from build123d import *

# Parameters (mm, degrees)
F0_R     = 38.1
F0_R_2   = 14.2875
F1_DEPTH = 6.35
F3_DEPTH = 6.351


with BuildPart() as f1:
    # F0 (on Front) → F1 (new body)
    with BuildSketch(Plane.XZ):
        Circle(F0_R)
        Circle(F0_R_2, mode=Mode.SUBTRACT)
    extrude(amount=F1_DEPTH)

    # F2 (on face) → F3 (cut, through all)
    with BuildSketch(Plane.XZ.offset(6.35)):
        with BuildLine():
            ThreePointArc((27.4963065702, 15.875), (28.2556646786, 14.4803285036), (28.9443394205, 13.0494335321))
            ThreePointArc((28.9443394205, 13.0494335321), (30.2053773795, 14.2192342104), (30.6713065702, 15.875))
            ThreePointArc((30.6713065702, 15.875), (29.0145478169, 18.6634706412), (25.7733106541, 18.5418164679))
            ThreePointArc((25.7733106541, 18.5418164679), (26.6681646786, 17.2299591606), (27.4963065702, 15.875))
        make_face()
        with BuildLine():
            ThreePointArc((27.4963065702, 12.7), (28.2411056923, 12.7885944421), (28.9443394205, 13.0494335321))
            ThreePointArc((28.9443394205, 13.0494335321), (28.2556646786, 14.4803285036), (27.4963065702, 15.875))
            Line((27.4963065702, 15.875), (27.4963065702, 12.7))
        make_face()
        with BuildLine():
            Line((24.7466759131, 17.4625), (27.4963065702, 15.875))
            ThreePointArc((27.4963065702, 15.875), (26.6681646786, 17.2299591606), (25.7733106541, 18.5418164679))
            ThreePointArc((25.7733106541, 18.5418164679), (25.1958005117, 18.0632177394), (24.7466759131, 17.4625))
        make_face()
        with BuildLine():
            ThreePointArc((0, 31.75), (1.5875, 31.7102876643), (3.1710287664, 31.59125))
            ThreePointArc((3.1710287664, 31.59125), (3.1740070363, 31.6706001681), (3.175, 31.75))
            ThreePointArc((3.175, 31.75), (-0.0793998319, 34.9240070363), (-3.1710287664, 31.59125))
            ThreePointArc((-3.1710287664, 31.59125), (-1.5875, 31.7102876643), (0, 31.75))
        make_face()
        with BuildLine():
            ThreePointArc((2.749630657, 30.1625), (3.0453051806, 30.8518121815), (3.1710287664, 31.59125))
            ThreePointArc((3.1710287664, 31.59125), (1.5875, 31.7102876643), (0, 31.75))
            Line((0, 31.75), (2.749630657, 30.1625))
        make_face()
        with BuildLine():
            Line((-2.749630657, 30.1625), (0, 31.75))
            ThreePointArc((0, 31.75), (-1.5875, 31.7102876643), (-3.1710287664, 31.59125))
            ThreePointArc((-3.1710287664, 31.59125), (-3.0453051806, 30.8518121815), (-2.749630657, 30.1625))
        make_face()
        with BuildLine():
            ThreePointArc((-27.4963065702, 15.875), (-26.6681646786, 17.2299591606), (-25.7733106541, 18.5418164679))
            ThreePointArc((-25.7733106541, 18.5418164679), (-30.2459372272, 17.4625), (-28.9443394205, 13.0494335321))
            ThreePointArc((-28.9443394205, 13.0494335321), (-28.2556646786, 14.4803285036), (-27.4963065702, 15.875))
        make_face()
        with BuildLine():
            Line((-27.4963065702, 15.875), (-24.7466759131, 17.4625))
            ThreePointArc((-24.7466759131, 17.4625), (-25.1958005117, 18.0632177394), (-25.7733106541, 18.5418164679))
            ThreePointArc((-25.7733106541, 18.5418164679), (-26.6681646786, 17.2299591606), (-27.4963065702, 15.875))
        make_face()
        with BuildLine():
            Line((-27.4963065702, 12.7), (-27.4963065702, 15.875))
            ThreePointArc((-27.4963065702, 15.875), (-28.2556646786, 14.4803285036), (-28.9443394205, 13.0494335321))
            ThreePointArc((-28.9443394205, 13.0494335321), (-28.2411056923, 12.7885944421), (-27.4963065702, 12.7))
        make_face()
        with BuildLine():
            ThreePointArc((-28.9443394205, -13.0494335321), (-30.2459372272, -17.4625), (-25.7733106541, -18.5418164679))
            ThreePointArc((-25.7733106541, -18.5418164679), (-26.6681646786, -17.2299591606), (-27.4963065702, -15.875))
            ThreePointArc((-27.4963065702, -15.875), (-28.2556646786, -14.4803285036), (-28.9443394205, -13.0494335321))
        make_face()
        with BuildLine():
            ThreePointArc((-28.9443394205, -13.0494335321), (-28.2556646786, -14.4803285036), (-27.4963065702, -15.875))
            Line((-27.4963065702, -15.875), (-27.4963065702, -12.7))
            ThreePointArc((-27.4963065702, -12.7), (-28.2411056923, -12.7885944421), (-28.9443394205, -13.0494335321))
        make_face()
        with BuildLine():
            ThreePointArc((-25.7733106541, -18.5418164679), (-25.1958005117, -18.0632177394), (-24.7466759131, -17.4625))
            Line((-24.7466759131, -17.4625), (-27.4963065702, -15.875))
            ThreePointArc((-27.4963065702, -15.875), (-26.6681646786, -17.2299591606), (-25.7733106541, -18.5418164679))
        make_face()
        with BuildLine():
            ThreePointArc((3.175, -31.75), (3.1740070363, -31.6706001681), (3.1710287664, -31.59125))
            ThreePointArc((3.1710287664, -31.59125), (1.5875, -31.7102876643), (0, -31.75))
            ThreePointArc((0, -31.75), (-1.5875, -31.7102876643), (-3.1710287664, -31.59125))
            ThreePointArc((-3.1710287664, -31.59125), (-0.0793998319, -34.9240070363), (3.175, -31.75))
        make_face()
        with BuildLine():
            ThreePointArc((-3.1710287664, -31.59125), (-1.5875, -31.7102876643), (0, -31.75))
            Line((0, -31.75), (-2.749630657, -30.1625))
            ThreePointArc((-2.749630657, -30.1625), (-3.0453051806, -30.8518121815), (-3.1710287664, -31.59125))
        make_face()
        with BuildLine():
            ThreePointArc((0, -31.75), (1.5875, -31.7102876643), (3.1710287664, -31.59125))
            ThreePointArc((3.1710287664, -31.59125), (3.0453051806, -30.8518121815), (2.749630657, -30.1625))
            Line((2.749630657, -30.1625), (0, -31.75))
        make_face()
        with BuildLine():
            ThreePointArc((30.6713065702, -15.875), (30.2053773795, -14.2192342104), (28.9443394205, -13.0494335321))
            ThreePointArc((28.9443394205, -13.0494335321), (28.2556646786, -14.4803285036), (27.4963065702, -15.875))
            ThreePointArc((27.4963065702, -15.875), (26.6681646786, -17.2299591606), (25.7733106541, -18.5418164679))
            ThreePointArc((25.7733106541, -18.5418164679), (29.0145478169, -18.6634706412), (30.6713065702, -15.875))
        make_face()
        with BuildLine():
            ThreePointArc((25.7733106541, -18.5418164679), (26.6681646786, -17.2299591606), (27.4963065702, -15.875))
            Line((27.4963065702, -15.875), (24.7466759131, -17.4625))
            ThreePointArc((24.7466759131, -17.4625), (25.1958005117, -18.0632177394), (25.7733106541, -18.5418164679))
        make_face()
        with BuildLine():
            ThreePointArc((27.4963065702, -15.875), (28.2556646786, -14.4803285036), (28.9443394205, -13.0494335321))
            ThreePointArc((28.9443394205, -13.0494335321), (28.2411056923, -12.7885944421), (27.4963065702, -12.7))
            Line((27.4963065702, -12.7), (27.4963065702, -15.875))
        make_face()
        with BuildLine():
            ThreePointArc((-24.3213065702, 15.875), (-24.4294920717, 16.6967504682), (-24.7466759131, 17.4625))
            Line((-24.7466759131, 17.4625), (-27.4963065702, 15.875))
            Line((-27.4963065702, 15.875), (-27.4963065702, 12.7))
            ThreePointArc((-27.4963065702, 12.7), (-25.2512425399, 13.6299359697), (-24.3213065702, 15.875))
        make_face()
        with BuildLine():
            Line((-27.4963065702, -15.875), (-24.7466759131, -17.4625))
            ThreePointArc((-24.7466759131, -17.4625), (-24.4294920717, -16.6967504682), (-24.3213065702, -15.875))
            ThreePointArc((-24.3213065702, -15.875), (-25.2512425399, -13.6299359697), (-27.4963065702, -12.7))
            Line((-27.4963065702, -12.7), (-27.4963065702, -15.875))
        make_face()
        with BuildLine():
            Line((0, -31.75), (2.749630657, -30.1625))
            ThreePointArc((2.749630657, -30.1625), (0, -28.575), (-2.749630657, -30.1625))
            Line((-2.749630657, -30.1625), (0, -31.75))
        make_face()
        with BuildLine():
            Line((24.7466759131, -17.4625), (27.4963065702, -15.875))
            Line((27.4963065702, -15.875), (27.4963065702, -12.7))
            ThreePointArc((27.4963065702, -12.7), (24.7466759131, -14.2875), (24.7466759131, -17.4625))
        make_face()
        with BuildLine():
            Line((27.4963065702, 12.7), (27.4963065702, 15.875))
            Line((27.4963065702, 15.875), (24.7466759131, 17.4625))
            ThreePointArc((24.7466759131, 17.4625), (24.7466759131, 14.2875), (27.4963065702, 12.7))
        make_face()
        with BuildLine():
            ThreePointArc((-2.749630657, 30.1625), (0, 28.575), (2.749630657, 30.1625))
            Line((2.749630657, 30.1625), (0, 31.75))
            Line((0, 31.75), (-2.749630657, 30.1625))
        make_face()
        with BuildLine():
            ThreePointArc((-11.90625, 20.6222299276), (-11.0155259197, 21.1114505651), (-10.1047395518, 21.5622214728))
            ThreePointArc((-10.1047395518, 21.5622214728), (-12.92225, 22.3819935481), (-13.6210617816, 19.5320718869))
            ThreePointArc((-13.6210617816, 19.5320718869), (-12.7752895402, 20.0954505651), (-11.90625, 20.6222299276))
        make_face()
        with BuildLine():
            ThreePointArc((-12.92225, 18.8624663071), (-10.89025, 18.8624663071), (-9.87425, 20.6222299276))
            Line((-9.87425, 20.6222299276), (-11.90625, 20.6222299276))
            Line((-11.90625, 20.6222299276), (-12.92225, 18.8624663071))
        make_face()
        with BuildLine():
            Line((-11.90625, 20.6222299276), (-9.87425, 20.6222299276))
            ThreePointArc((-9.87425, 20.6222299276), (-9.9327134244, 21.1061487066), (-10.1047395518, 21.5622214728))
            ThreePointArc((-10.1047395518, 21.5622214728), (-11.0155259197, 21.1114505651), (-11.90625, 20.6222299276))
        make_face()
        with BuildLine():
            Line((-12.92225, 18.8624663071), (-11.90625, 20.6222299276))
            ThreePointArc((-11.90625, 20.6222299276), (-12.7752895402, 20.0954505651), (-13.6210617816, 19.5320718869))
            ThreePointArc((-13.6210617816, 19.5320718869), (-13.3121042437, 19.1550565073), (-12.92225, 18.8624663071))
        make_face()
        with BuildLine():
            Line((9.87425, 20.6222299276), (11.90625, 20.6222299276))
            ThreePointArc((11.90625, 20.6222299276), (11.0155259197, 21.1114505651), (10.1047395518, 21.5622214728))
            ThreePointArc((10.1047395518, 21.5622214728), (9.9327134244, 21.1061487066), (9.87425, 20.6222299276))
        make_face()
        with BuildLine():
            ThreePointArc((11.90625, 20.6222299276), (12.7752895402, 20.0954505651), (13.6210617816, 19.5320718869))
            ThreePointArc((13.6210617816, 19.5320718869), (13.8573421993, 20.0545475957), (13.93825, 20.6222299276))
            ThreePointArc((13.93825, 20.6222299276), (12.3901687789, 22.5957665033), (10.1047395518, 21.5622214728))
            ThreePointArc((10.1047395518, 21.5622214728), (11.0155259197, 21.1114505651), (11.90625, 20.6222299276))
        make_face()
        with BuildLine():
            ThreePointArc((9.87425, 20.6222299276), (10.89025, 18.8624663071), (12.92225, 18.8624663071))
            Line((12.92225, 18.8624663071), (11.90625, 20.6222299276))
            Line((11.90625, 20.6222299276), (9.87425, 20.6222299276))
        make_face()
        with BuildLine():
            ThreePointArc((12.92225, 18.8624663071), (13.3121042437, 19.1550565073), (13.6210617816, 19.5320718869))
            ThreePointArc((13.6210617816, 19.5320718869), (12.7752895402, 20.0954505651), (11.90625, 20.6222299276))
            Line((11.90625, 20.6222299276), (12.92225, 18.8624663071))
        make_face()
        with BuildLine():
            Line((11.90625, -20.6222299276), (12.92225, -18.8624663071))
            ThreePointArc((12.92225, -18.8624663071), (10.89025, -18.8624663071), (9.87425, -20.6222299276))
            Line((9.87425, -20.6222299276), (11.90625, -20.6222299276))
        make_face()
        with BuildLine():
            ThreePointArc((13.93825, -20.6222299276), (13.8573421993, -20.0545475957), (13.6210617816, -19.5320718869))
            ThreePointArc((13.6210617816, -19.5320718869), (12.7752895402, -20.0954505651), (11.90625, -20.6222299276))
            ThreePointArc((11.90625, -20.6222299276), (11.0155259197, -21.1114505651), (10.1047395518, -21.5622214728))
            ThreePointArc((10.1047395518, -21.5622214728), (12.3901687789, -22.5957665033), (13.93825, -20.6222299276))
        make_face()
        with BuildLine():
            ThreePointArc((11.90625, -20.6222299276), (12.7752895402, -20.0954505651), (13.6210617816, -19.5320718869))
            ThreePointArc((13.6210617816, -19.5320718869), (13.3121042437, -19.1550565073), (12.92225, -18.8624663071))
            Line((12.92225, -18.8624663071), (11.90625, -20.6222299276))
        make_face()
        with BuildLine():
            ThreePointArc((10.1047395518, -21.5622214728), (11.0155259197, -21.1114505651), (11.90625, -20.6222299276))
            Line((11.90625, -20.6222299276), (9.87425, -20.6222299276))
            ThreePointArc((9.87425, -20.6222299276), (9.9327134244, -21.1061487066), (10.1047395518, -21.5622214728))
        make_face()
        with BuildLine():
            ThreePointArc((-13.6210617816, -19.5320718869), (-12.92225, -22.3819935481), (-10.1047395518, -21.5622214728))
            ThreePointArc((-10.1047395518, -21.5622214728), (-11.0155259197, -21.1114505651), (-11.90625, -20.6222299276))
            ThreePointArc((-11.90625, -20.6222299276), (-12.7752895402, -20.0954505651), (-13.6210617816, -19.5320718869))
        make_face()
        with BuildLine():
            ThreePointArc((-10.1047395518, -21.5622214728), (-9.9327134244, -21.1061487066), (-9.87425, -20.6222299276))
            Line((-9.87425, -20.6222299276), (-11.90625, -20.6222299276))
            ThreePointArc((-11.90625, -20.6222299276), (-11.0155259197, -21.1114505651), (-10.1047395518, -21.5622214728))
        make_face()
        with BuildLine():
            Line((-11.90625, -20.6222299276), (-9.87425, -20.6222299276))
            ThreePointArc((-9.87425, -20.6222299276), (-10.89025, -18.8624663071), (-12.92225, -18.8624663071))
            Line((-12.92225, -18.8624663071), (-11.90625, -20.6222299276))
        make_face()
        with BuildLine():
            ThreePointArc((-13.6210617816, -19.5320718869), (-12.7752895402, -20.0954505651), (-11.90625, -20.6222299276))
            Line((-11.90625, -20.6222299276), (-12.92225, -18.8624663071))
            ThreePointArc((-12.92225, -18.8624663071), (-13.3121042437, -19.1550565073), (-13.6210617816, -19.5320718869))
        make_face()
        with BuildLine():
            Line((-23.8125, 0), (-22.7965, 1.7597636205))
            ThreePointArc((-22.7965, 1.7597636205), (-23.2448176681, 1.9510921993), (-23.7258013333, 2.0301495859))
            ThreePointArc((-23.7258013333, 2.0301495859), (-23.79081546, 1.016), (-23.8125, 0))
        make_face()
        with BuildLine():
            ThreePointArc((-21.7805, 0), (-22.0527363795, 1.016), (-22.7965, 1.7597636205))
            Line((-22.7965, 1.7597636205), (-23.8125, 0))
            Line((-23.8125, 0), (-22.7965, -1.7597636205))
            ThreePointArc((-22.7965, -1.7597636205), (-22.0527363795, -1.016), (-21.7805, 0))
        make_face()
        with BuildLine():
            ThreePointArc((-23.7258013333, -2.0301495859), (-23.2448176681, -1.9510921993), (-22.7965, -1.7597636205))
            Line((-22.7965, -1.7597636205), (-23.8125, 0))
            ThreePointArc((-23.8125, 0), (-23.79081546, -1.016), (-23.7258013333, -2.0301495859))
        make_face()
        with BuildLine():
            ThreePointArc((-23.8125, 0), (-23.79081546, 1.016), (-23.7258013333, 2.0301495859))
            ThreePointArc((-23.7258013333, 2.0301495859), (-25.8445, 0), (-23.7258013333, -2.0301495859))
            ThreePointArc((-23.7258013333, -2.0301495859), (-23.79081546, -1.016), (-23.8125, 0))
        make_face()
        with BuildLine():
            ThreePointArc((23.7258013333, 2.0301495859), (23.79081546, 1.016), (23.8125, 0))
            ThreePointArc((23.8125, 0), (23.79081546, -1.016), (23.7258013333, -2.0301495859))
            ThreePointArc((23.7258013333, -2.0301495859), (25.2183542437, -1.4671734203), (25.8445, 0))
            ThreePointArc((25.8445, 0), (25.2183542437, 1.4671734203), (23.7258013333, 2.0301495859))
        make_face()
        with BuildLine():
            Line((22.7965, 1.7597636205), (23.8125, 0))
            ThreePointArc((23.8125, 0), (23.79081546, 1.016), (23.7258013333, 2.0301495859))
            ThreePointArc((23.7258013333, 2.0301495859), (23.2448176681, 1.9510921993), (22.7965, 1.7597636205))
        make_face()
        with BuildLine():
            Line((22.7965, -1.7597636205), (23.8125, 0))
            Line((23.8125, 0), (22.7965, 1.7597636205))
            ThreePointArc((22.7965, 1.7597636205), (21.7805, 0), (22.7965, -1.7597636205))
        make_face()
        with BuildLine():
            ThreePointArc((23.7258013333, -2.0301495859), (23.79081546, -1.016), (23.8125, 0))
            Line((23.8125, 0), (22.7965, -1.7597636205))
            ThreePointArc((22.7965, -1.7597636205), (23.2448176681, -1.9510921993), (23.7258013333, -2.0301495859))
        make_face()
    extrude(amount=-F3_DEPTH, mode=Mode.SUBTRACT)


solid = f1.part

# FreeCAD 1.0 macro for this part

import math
import FreeCAD as App
import Part
import Sketcher
Q = App.Units.Quantity

doc = App.newDocument("Part")
body = doc.addObject("PartDesign::Body", "Body")

sketch1 = body.newObject("Sketcher::SketchObject", "Sketch")
sketch1.AttachmentSupport = (doc.getObject("XZ_Plane"), [""])
sketch1.MapMode = "FlatFace"
sketch1.addGeometry([
    Part.Circle(App.Vector(0, 0, 0), App.Vector(0, 0, 1), 38),
    Part.Circle(App.Vector(0, 0, 0), App.Vector(0, 0, 1), 14),
], False)
sketch1.addConstraint([
    Sketcher.Constraint("Coincident", 0, 3, -1, 1),
    Sketcher.Constraint("Coincident", 1, 3, -1, 1),
    Sketcher.Constraint("Diameter", 0, Q("3 in")),
    Sketcher.Constraint("Diameter", 1, Q("1.125 in")),
])
pad1 = body.newObject("PartDesign::Pad", "Pad")
pad1.Profile = sketch1
pad1.Length = Q("0.25 in")

sketch2 = body.newObject("Sketcher::SketchObject", "Sketch001")
sketch2.AttachmentSupport = (doc.getObject("XZ_Plane"), [""])
sketch2.MapMode = "FlatFace"
sketch2.AttachmentOffset = App.Placement(App.Vector(0, 0, 0.25 * 25.4), App.Rotation())
sketch2.addGeometry([
    Part.ArcOfCircle(Part.Circle(App.Vector(27.5, 15.88, 0), App.Vector(0, 0, 1), 3.17), math.radians(-63), math.radians(0)),
    Part.ArcOfCircle(Part.Circle(App.Vector(27.5, 15.88, 0), App.Vector(0, 0, 1), 3.17), math.radians(0), math.radians(123)),
    Part.ArcOfCircle(Part.Circle(App.Vector(27.5, 15.87, 0), App.Vector(0, 0, 1), 3.18), math.radians(123), math.radians(150)),
    Part.ArcOfCircle(Part.Circle(App.Vector(27.5, 15.88, 0), App.Vector(0, 0, 1), 3.17), math.radians(150), math.radians(270)),
    Part.ArcOfCircle(Part.Circle(App.Vector(27.5, 15.88, 0), App.Vector(0, 0, 1), 3.17), math.radians(-90), math.radians(-63)),
    Part.ArcOfCircle(Part.Circle(App.Vector(0, 31.75, 0), App.Vector(0, 0, 1), 3.18), math.radians(-2.87), math.radians(0)),
    Part.ArcOfCircle(Part.Circle(App.Vector(0, 31.75, 0), App.Vector(0, 0, 1), 3.17), math.radians(0), math.radians(183)),
    Part.ArcOfCircle(Part.Circle(App.Vector(0, 31.75, 0), App.Vector(0, 0, 1), 3.17), math.radians(-177), math.radians(-150)),
    Part.ArcOfCircle(Part.Circle(App.Vector(0, 31.75, 0), App.Vector(0, 0, 1), 3.17), math.radians(-150), math.radians(-30)),
    Part.ArcOfCircle(Part.Circle(App.Vector(0, 31.75, 0), App.Vector(0, 0, 1), 3.17), math.radians(-30), math.radians(-3)),
    Part.ArcOfCircle(Part.Circle(App.Vector(-27.5, 15.88, 0), App.Vector(0, 0, 1), 3.17), math.radians(57), math.radians(243)),
    Part.ArcOfCircle(Part.Circle(App.Vector(-27.5, 15.88, 0), App.Vector(0, 0, 1), 3.17), math.radians(-117), math.radians(-90)),
    Part.ArcOfCircle(Part.Circle(App.Vector(-27.5, 15.88, 0), App.Vector(0, 0, 1), 3.17), math.radians(-90), math.radians(0)),
    Part.ArcOfCircle(Part.Circle(App.Vector(-27.5, 15.88, 0), App.Vector(0, 0, 1), 3.17), math.radians(0), math.radians(30)),
    Part.ArcOfCircle(Part.Circle(App.Vector(-27.5, 15.87, 0), App.Vector(0, 0, 1), 3.18), math.radians(30), math.radians(57)),
    Part.ArcOfCircle(Part.Circle(App.Vector(-27.5, -15.88, 0), App.Vector(0, 0, 1), 3.17), math.radians(117), math.radians(303)),
    Part.ArcOfCircle(Part.Circle(App.Vector(-27.5, -15.87, 0), App.Vector(0, 0, 1), 3.18), math.radians(-57), math.radians(-30)),
    Part.ArcOfCircle(Part.Circle(App.Vector(-27.5, -15.88, 0), App.Vector(0, 0, 1), 3.17), math.radians(-30), math.radians(0)),
    Part.ArcOfCircle(Part.Circle(App.Vector(-27.5, -15.88, 0), App.Vector(0, 0, 1), 3.17), math.radians(0), math.radians(90)),
    Part.ArcOfCircle(Part.Circle(App.Vector(-27.5, -15.88, 0), App.Vector(0, 0, 1), 3.17), math.radians(90), math.radians(117)),
    Part.ArcOfCircle(Part.Circle(App.Vector(0, -31.75, 0), App.Vector(0, 0, 1), 3.18), math.radians(0), math.radians(2.87)),
    Part.ArcOfCircle(Part.Circle(App.Vector(0, -31.75, 0), App.Vector(0, 0, 1), 3.17), math.radians(3), math.radians(30)),
    Part.ArcOfCircle(Part.Circle(App.Vector(0, -31.75, 0), App.Vector(0, 0, 1), 3.17), math.radians(30), math.radians(150)),
    Part.ArcOfCircle(Part.Circle(App.Vector(0, -31.75, 0), App.Vector(0, 0, 1), 3.17), math.radians(150), math.radians(177)),
    Part.ArcOfCircle(Part.Circle(App.Vector(0, -31.75, 0), App.Vector(0, 0, 1), 3.17), math.radians(177), math.radians(360)),
    Part.ArcOfCircle(Part.Circle(App.Vector(27.5, -15.88, 0), App.Vector(0, 0, 1), 3.17), math.radians(0), math.radians(63)),
    Part.ArcOfCircle(Part.Circle(App.Vector(27.5, -15.88, 0), App.Vector(0, 0, 1), 3.17), math.radians(63), math.radians(90)),
    Part.ArcOfCircle(Part.Circle(App.Vector(27.5, -15.88, 0), App.Vector(0, 0, 1), 3.17), math.radians(90), math.radians(210)),
    Part.ArcOfCircle(Part.Circle(App.Vector(27.5, -15.87, 0), App.Vector(0, 0, 1), 3.18), math.radians(-150), math.radians(-123)),
    Part.ArcOfCircle(Part.Circle(App.Vector(27.5, -15.88, 0), App.Vector(0, 0, 1), 3.17), math.radians(-123), math.radians(0)),
    Part.ArcOfCircle(Part.Circle(App.Vector(-11.91, 20.62, 0), App.Vector(0, 0, 1), 2.03), math.radians(28), math.radians(212)),
    Part.ArcOfCircle(Part.Circle(App.Vector(-11.91, 20.62, 0), App.Vector(0, 0, 1), 2.03), math.radians(-148), math.radians(-120)),
    Part.ArcOfCircle(Part.Circle(App.Vector(-11.91, 20.62, 0), App.Vector(0, 0, 1), 2.03), math.radians(-120), math.radians(0)),
    Part.ArcOfCircle(Part.Circle(App.Vector(-11.91, 20.62, 0), App.Vector(0, 0, 1), 2.03), math.radians(0), math.radians(28)),
    Part.ArcOfCircle(Part.Circle(App.Vector(11.91, 20.62, 0), App.Vector(0, 0, 1), 2.03), math.radians(-32), math.radians(0)),
    Part.ArcOfCircle(Part.Circle(App.Vector(11.91, 20.62, 0), App.Vector(0, 0, 1), 2.03), math.radians(0), math.radians(152)),
    Part.ArcOfCircle(Part.Circle(App.Vector(11.91, 20.62, 0), App.Vector(0, 0, 1), 2.03), math.radians(152), math.radians(180)),
    Part.ArcOfCircle(Part.Circle(App.Vector(11.91, 20.62, 0), App.Vector(0, 0, 1), 2.03), math.radians(180), math.radians(300)),
    Part.ArcOfCircle(Part.Circle(App.Vector(11.91, 20.62, 0), App.Vector(0, 0, 1), 2.03), math.radians(-60), math.radians(-32)),
    Part.ArcOfCircle(Part.Circle(App.Vector(11.91, -20.62, 0), App.Vector(0, 0, 1), 2.03), math.radians(60), math.radians(180)),
    Part.ArcOfCircle(Part.Circle(App.Vector(11.91, -20.62, 0), App.Vector(0, 0, 1), 2.03), math.radians(-180), math.radians(-152)),
    Part.ArcOfCircle(Part.Circle(App.Vector(11.91, -20.62, 0), App.Vector(0, 0, 1), 2.03), math.radians(-152), math.radians(0)),
    Part.ArcOfCircle(Part.Circle(App.Vector(11.91, -20.62, 0), App.Vector(0, 0, 1), 2.03), math.radians(0), math.radians(32)),
    Part.ArcOfCircle(Part.Circle(App.Vector(11.91, -20.62, 0), App.Vector(0, 0, 1), 2.03), math.radians(32), math.radians(60)),
    Part.ArcOfCircle(Part.Circle(App.Vector(-11.91, -20.62, 0), App.Vector(0, 0, 1), 2.03), math.radians(148), math.radians(332)),
    Part.ArcOfCircle(Part.Circle(App.Vector(-11.91, -20.62, 0), App.Vector(0, 0, 1), 2.03), math.radians(-28), math.radians(0)),
    Part.ArcOfCircle(Part.Circle(App.Vector(-11.91, -20.62, 0), App.Vector(0, 0, 1), 2.03), math.radians(0), math.radians(120)),
    Part.ArcOfCircle(Part.Circle(App.Vector(-11.91, -20.62, 0), App.Vector(0, 0, 1), 2.03), math.radians(120), math.radians(148)),
    Part.ArcOfCircle(Part.Circle(App.Vector(-23.81, 0, 0), App.Vector(0, 0, 1), 2.03), math.radians(60), math.radians(88)),
    Part.ArcOfCircle(Part.Circle(App.Vector(-23.81, 0, 0), App.Vector(0, 0, 1), 2.03), math.radians(88), math.radians(272)),
    Part.ArcOfCircle(Part.Circle(App.Vector(-23.81, 0, 0), App.Vector(0, 0, 1), 2.03), math.radians(-88), math.radians(-60)),
    Part.ArcOfCircle(Part.Circle(App.Vector(-23.81, 0, 0), App.Vector(0, 0, 1), 2.03), math.radians(-60), math.radians(0)),
    Part.ArcOfCircle(Part.Circle(App.Vector(-23.81, 0, 0), App.Vector(0, 0, 1), 2.03), math.radians(0), math.radians(60)),
    Part.ArcOfCircle(Part.Circle(App.Vector(23.81, 0, 0), App.Vector(0, 0, 1), 2.03), math.radians(-92), math.radians(0)),
    Part.ArcOfCircle(Part.Circle(App.Vector(23.81, 0, 0), App.Vector(0, 0, 1), 2.03), math.radians(0), math.radians(92)),
    Part.ArcOfCircle(Part.Circle(App.Vector(23.81, 0, 0), App.Vector(0, 0, 1), 2.03), math.radians(92), math.radians(120)),
    Part.ArcOfCircle(Part.Circle(App.Vector(23.81, 0, 0), App.Vector(0, 0, 1), 2.03), math.radians(120), math.radians(240)),
    Part.ArcOfCircle(Part.Circle(App.Vector(23.81, 0, 0), App.Vector(0, 0, 1), 2.03), math.radians(-120), math.radians(-92)),
], False)
sketch2.addConstraint([
    Sketcher.Constraint("Tangent", 0, 2, 1, 1),
    Sketcher.Constraint("Tangent", 1, 2, 2, 1),
    Sketcher.Constraint("Tangent", 2, 2, 3, 1),
    Sketcher.Constraint("Tangent", 3, 2, 4, 1),
    Sketcher.Constraint("Tangent", 4, 2, 0, 1),
    Sketcher.Constraint("Tangent", 5, 2, 6, 1),
    Sketcher.Constraint("Tangent", 6, 2, 7, 1),
    Sketcher.Constraint("Tangent", 7, 2, 8, 1),
    Sketcher.Constraint("Tangent", 8, 2, 9, 1),
    Sketcher.Constraint("Tangent", 9, 2, 5, 1),
    Sketcher.Constraint("Tangent", 10, 2, 11, 1),
    Sketcher.Constraint("Tangent", 11, 2, 12, 1),
    Sketcher.Constraint("Tangent", 12, 2, 13, 1),
    Sketcher.Constraint("Tangent", 13, 2, 14, 1),
    Sketcher.Constraint("Tangent", 14, 2, 10, 1),
    Sketcher.Constraint("Tangent", 15, 2, 16, 1),
    Sketcher.Constraint("Tangent", 16, 2, 17, 1),
    Sketcher.Constraint("Tangent", 17, 2, 18, 1),
    Sketcher.Constraint("Tangent", 18, 2, 19, 1),
    Sketcher.Constraint("Tangent", 19, 2, 15, 1),
    Sketcher.Constraint("Tangent", 20, 2, 21, 1),
    Sketcher.Constraint("Tangent", 21, 2, 22, 1),
    Sketcher.Constraint("Tangent", 22, 2, 23, 1),
    Sketcher.Constraint("Tangent", 23, 2, 24, 1),
    Sketcher.Constraint("Tangent", 24, 2, 20, 1),
    Sketcher.Constraint("Tangent", 25, 2, 26, 1),
    Sketcher.Constraint("Tangent", 26, 2, 27, 1),
    Sketcher.Constraint("Tangent", 27, 2, 28, 1),
    Sketcher.Constraint("Tangent", 28, 2, 29, 1),
    Sketcher.Constraint("Tangent", 29, 2, 25, 1),
    Sketcher.Constraint("Tangent", 30, 2, 31, 1),
    Sketcher.Constraint("Tangent", 31, 2, 32, 1),
    Sketcher.Constraint("Tangent", 32, 2, 33, 1),
    Sketcher.Constraint("Tangent", 33, 2, 30, 1),
    Sketcher.Constraint("Tangent", 34, 2, 35, 1),
    Sketcher.Constraint("Tangent", 35, 2, 36, 1),
    Sketcher.Constraint("Tangent", 36, 2, 37, 1),
    Sketcher.Constraint("Tangent", 37, 2, 38, 1),
    Sketcher.Constraint("Tangent", 38, 2, 34, 1),
    Sketcher.Constraint("Tangent", 39, 2, 40, 1),
    Sketcher.Constraint("Tangent", 40, 2, 41, 1),
    Sketcher.Constraint("Tangent", 41, 2, 42, 1),
    Sketcher.Constraint("Tangent", 42, 2, 43, 1),
    Sketcher.Constraint("Tangent", 43, 2, 39, 1),
    Sketcher.Constraint("Tangent", 44, 2, 45, 1),
    Sketcher.Constraint("Tangent", 45, 2, 46, 1),
    Sketcher.Constraint("Tangent", 46, 2, 47, 1),
    Sketcher.Constraint("Tangent", 47, 2, 44, 1),
    Sketcher.Constraint("Tangent", 48, 2, 49, 1),
    Sketcher.Constraint("Tangent", 49, 2, 50, 1),
    Sketcher.Constraint("Tangent", 50, 2, 51, 1),
    Sketcher.Constraint("Tangent", 51, 2, 52, 1),
    Sketcher.Constraint("Tangent", 52, 2, 48, 1),
    Sketcher.Constraint("Tangent", 53, 2, 54, 1),
    Sketcher.Constraint("Tangent", 54, 2, 55, 1),
    Sketcher.Constraint("Tangent", 55, 2, 56, 1),
    Sketcher.Constraint("Tangent", 56, 2, 57, 1),
    Sketcher.Constraint("Tangent", 57, 2, 53, 1),
    Sketcher.Constraint("Coincident", 2, 3, 0, 3),
    Sketcher.Constraint("Coincident", 7, 3, 5, 3),
    Sketcher.Constraint("Coincident", 12, 3, 10, 3),
    Sketcher.Constraint("Coincident", 17, 3, 15, 3),
    Sketcher.Constraint("Coincident", 22, 3, 20, 3),
    Sketcher.Constraint("Coincident", 27, 3, 25, 3),
    Sketcher.Constraint("Coincident", 36, 3, 34, 3),
    Sketcher.Constraint("Coincident", 41, 3, 39, 3),
    Sketcher.Constraint("Coincident", 50, 3, 48, 3),
    Sketcher.Constraint("Coincident", 55, 3, 53, 3),
    Sketcher.Constraint("Equal", 4, 5),
    Sketcher.Constraint("Equal", 9, 10),
    Sketcher.Constraint("Equal", 14, 15),
    Sketcher.Constraint("Equal", 19, 20),
    Sketcher.Constraint("Equal", 24, 25),
    Sketcher.Constraint("Equal", 30, 31),
    Sketcher.Constraint("Equal", 33, 34),
    Sketcher.Constraint("Equal", 38, 39),
    Sketcher.Constraint("Equal", 43, 44),
    Sketcher.Constraint("Equal", 44, 45),
    Sketcher.Constraint("Equal", 47, 48),
    Sketcher.Constraint("Equal", 52, 53),
    Sketcher.Constraint("Symmetric", 0, 3, 15, 3, -1, 1),
    Sketcher.Constraint("Symmetric", 5, 3, 20, 3, -1, 1),
    Sketcher.Constraint("Symmetric", 10, 3, 25, 3, -1, 1),
    Sketcher.Constraint("Symmetric", 30, 3, 39, 3, -1, 1),
    Sketcher.Constraint("Symmetric", 34, 3, 44, 3, -1, 1),
    Sketcher.Constraint("Symmetric", 48, 3, 53, 3, -1, 1),
    Sketcher.Constraint("Symmetric", 0, 3, 10, 3, -2),
    Sketcher.Constraint("Symmetric", 30, 3, 34, 3, -2),
    Sketcher.Constraint("Symmetric", 7, 2, 8, 2, -2),
    Sketcher.Constraint("Symmetric", 48, 2, 54, 2, -2),
    Sketcher.Constraint("PointOnObject", 51, 2, -1),
    Sketcher.Constraint("PointOnObject", 53, 2, -1),
    Sketcher.Constraint("Horizontal", 14, 3, 0, 2),
    Sketcher.Constraint("Horizontal", 9, 3, 5, 2),
    Sketcher.Constraint("Horizontal", 6, 2, 9, 2),
    Sketcher.Constraint("Horizontal", 4, 2, 10, 2),
    Sketcher.Constraint("Horizontal", 0, 2, 12, 2),
    Sketcher.Constraint("Horizontal", 2, 2, 13, 2),
    Sketcher.Constraint("Horizontal", 1, 2, 14, 2),
    Sketcher.Constraint("Horizontal", 29, 3, 17, 2),
    Sketcher.Constraint("Horizontal", 21, 2, 22, 2),
    Sketcher.Constraint("Horizontal", 20, 2, 23, 2),
    Sketcher.Constraint("Horizontal", 23, 3, 24, 2),
    Sketcher.Constraint("Horizontal", 19, 2, 25, 2),
    Sketcher.Constraint("Horizontal", 16, 2, 27, 2),
    Sketcher.Constraint("Horizontal", 15, 2, 28, 2),
    Sketcher.Constraint("Horizontal", 17, 2, 29, 2),
    Sketcher.Constraint("Horizontal", 38, 3, 32, 2),
    Sketcher.Constraint("Horizontal", 32, 2, 34, 2),
    Sketcher.Constraint("Horizontal", 33, 2, 35, 2),
    Sketcher.Constraint("Horizontal", 34, 2, 36, 2),
    Sketcher.Constraint("Horizontal", 31, 2, 37, 2),
    Sketcher.Constraint("Horizontal", 30, 2, 38, 2),
    Sketcher.Constraint("Horizontal", 47, 3, 39, 2),
    Sketcher.Constraint("Horizontal", 39, 2, 41, 2),
    Sketcher.Constraint("Horizontal", 40, 2, 44, 2),
    Sketcher.Constraint("Horizontal", 41, 2, 45, 2),
    Sketcher.Constraint("Horizontal", 43, 2, 46, 2),
    Sketcher.Constraint("Horizontal", 42, 2, 47, 2),
    Sketcher.Constraint("Horizontal", 52, 2, 55, 2),
    Sketcher.Constraint("Horizontal", 50, 2, 56, 2),
    Sketcher.Constraint("Horizontal", 49, 2, 57, 2),
    Sketcher.Constraint("Vertical", 29, 3, 3, 2),
    Sketcher.Constraint("Vertical", 19, 3, 11, 2),
    Sketcher.Constraint("Vertical", 14, 2, 15, 2),
    Sketcher.Constraint("Vertical", 13, 2, 16, 2),
    Sketcher.Constraint("Vertical", 11, 2, 18, 2),
    Sketcher.Constraint("Vertical", 10, 2, 19, 2),
    Sketcher.Constraint("Vertical", 9, 2, 20, 2),
    Sketcher.Constraint("Vertical", 8, 2, 21, 2),
    Sketcher.Constraint("Vertical", 3, 2, 26, 2),
    Sketcher.Constraint("Vertical", 35, 2, 40, 2),
    Sketcher.Constraint("Vertical", 38, 2, 42, 2),
    Sketcher.Constraint("Vertical", 37, 2, 43, 2),
    Sketcher.Constraint("Vertical", 48, 2, 49, 2),
    Sketcher.Constraint("Vertical", 50, 2, 52, 2),
    Sketcher.Constraint("Radius", 30, Q("0.08 in")),
    Sketcher.Constraint("Radius", 0, Q("0.125 in")),
    Sketcher.Constraint("DistanceY", -1, 1, 3, 2, Q("0.5 in")),
    Sketcher.Constraint("DistanceY", -1, 1, 5, 3, Q("1.25 in")),
    Sketcher.Constraint("DistanceX", 30, 3, -1, 1, Q("0.46875 in")),
    Sketcher.Constraint("DistanceX", 48, 3, -1, 1, Q("0.9375 in")),
    Sketcher.Constraint("DistanceY", -1, 1, 2, 2, Q("0.6875 in")),
    Sketcher.Constraint("DistanceY", -1, 1, 7, 2, Q("1.1875 in")),
    Sketcher.Constraint("DistanceX", 50, 2, -1, 1, Q("0.8975 in")),
    Sketcher.Constraint("DistanceX", 48, 2, -1, 1, Q("23.725801 mm")),
    Sketcher.Constraint("DistanceY", -1, 1, 30, 3, Q("20.62223 mm")),
    Sketcher.Constraint("DistanceX", -1, 1, 1, 2, Q("25.773311 mm")),
    Sketcher.Constraint("DistanceX", -1, 1, 4, 2, Q("28.944339 mm")),
    Sketcher.Constraint("DistanceX", 6, 2, -1, 1, Q("3.171029 mm")),
    Sketcher.Constraint("DistanceX", 30, 2, -1, 1, Q("13.621062 mm")),
    Sketcher.Constraint("DistanceX", 31, 2, -1, 1, Q("12.92225 mm")),
    Sketcher.Constraint("DistanceX", 33, 2, -1, 1, Q("10.10474 mm")),
    Sketcher.Constraint("DistanceX", -1, 1, 0, 3, Q("27.496307 mm")),
])
pocket1 = body.newObject("PartDesign::Pocket", "Pocket")
pocket1.Profile = sketch2
pocket1.Type = "ThroughAll"

doc.recompute()
